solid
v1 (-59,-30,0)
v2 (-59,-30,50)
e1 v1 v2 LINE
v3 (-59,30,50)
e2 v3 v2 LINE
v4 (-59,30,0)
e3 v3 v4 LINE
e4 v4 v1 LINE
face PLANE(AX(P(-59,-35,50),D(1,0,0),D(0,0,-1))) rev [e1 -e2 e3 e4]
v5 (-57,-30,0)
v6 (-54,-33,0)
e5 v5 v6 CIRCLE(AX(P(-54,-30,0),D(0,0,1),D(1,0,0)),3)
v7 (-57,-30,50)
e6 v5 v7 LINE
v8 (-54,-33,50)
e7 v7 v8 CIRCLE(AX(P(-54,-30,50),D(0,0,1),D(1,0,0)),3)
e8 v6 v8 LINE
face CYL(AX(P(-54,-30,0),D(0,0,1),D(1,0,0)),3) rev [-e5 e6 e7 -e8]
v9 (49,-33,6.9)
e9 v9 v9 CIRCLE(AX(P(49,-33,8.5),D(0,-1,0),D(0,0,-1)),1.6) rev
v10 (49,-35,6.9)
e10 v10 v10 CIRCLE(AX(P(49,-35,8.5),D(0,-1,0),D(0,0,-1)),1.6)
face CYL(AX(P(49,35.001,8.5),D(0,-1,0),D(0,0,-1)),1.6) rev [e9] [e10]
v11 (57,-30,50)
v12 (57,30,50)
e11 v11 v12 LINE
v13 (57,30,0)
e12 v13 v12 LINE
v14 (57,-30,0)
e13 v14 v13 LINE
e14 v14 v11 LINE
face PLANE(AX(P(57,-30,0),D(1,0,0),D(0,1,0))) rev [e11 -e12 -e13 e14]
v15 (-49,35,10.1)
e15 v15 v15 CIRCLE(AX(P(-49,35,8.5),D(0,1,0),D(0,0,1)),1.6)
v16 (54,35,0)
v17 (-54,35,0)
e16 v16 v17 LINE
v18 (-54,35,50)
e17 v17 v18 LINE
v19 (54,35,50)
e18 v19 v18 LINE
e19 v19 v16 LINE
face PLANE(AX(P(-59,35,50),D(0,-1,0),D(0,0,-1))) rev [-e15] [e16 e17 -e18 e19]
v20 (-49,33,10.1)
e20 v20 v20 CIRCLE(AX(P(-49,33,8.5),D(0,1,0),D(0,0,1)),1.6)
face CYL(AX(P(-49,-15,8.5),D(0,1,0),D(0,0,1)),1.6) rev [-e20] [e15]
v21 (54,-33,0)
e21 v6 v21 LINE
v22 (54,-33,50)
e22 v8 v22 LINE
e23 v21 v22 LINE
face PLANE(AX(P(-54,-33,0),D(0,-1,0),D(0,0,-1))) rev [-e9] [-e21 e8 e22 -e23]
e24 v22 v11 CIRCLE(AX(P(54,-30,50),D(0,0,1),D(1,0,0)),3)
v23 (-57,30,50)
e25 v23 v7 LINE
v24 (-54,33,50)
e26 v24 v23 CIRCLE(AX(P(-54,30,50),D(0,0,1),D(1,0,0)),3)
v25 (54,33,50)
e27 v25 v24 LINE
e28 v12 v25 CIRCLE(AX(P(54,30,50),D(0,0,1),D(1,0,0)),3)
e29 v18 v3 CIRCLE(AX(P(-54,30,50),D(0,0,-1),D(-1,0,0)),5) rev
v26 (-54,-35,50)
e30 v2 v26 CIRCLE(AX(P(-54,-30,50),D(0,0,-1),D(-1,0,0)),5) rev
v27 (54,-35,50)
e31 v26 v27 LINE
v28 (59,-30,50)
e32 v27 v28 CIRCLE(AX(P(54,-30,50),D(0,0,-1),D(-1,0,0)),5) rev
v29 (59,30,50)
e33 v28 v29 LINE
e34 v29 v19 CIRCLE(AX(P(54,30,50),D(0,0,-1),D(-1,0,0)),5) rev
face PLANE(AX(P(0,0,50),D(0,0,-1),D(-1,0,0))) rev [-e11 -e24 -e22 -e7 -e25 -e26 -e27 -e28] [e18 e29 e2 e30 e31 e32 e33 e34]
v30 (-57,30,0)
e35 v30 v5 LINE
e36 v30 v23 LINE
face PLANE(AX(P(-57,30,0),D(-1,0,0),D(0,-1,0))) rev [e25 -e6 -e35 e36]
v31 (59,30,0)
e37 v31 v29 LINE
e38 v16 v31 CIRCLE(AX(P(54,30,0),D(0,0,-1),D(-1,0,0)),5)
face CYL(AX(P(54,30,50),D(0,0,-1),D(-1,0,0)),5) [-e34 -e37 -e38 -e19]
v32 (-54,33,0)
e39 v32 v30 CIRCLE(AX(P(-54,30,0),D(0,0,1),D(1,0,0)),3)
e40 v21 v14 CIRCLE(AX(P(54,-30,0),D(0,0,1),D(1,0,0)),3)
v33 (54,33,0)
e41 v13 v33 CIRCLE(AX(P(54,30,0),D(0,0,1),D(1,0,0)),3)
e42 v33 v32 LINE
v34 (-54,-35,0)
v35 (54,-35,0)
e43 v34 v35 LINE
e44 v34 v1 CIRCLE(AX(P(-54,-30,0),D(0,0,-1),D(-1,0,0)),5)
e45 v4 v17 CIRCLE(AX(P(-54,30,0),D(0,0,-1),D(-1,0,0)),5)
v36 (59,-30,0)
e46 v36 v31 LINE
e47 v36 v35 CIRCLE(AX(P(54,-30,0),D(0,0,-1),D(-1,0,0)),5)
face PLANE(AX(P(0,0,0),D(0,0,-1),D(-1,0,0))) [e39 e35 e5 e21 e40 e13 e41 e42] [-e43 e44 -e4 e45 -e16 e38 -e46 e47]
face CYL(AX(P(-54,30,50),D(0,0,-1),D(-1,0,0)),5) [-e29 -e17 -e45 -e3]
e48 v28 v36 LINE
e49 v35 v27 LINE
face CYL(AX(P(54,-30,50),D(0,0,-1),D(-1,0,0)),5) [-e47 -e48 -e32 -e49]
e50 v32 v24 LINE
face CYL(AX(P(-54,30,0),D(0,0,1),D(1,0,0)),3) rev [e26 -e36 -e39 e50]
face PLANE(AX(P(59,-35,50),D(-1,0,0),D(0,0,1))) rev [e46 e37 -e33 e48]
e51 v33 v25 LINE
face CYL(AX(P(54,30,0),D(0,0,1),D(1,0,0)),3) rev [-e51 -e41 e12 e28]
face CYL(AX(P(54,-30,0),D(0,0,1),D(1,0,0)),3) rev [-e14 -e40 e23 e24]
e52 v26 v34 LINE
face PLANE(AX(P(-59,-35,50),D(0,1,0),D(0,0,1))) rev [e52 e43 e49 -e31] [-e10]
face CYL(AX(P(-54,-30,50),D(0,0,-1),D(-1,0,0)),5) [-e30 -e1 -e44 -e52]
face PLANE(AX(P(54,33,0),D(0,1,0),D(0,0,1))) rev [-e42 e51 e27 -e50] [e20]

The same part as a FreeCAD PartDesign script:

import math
import FreeCAD as App
import Part
import Sketcher
Q = App.Units.Quantity


def edges_at(feature, points):
    """Names of the edges that pass closest to the given points."""
    edges = feature.Shape.Edges
    near = lambda p: min(range(len(edges)), key=lambda i: edges[i].distToShape(Part.Vertex(*p))[0])
    return sorted({f"Edge{near(p) + 1}" for p in points})

doc = App.newDocument("Part")
body = doc.addObject("PartDesign::Body", "Body")

# Sketch on XY plane
sketch1 = doc.addObject("Sketcher::SketchObject", "Sketch")
body.addObject(sketch1)
sketch1.AttachmentSupport = (doc.XY_Plane, [""])
sketch1.MapMode = "FlatFace"
sketch1.addGeometry(Part.LineSegment(App.Vector(-59, 35, 0), App.Vector(-59, -35, 0)), False)
sketch1.addGeometry(Part.LineSegment(App.Vector(-59, -35, 0), App.Vector(59, -35, 0)), False)
sketch1.addGeometry(Part.LineSegment(App.Vector(59, -35, 0), App.Vector(59, 35, 0)), False)
sketch1.addGeometry(Part.LineSegment(App.Vector(59, 35, 0), App.Vector(-59, 35, 0)), False)
sketch1.addConstraint(Sketcher.Constraint("Coincident", 0, 2, 1, 1))
sketch1.addConstraint(Sketcher.Constraint("Coincident", 1, 2, 2, 1))
sketch1.addConstraint(Sketcher.Constraint("Coincident", 2, 2, 3, 1))
sketch1.addConstraint(Sketcher.Constraint("Coincident", 3, 2, 0, 1))
sketch1.addConstraint(Sketcher.Constraint("Vertical", 0))
sketch1.addConstraint(Sketcher.Constraint("Horizontal", 1))
sketch1.addConstraint(Sketcher.Constraint("Vertical", 2))
sketch1.addConstraint(Sketcher.Constraint("Horizontal", 3))
sketch1.addConstraint(Sketcher.Constraint("Symmetric", 0, 2, 2, 2, -1, 1))
sketch1.addConstraint(Sketcher.Constraint("DistanceX", 1, 1, 1, 2, Q("118 mm")))
sketch1.addConstraint(Sketcher.Constraint("DistanceY", 0, 2, 0, 1, Q("70 mm")))
pad1 = doc.addObject("PartDesign::Pad", "Pad")
body.addObject(pad1)
pad1.Profile = sketch1
pad1.Length = 50
doc.recompute()

fillet = doc.addObject("PartDesign::Fillet", "Fillet")
body.addObject(fillet)
fillet.Base = (pad1, edges_at(pad1, [
    (59, -35, 25),
    (-59, -35, 25),
    (-59, 35, 25),
    (59, 35, 25),
]))
fillet.Radius = 5

# Sketch on XY plane
sketch2 = doc.addObject("Sketcher::SketchObject", "Sketch001")
body.addObject(sketch2)
sketch2.AttachmentSupport = (doc.XY_Plane, [""])
sketch2.MapMode = "FlatFace"
sketch2.AttachmentOffset = App.Placement(App.Vector(0, 0, 50), App.Rotation())
sketch2.addGeometry(Part.LineSegment(App.Vector(-54, -33, 0), App.Vector(54, -33, 0)), False)
sketch2.addGeometry(Part.ArcOfCircle(Part.Circle(App.Vector(54, -30, 0), App.Vector(0, 0, 1), 3), math.radians(-90), math.radians(0)), False)
sketch2.addGeometry(Part.LineSegment(App.Vector(57, -30, 0), App.Vector(57, 30, 0)), False)
sketch2.addGeometry(Part.ArcOfCircle(Part.Circle(App.Vector(54, 30, 0), App.Vector(0, 0, 1), 3), math.radians(0), math.radians(90)), False)
sketch2.addGeometry(Part.LineSegment(App.Vector(54, 33, 0), App.Vector(-54, 33, 0)), False)
sketch2.addGeometry(Part.ArcOfCircle(Part.Circle(App.Vector(-54, 30, 0), App.Vector(0, 0, 1), 3), math.radians(90), math.radians(180)), False)
sketch2.addGeometry(Part.LineSegment(App.Vector(-57, 30, 0), App.Vector(-57, -30, 0)), False)
sketch2.addGeometry(Part.ArcOfCircle(Part.Circle(App.Vector(-54, -30, 0), App.Vector(0, 0, 1), 3), math.radians(180), math.radians(270)), False)
sketch2.addConstraint(Sketcher.Constraint("Tangent", 0, 2, 1, 1))
sketch2.addConstraint(Sketcher.Constraint("Tangent", 1, 2, 2, 1))
sketch2.addConstraint(Sketcher.Constraint("Tangent", 2, 2, 3, 1))
sketch2.addConstraint(Sketcher.Constraint("Tangent", 3, 2, 4, 1))
sketch2.addConstraint(Sketcher.Constraint("Tangent", 4, 2, 5, 1))
sketch2.addConstraint(Sketcher.Constraint("Tangent", 5, 2, 6, 1))
sketch2.addConstraint(Sketcher.Constraint("Tangent", 6, 2, 7, 1))
sketch2.addConstraint(Sketcher.Constraint("Tangent", 7, 2, 0, 1))
sketch2.addConstraint(Sketcher.Constraint("Horizontal", 0))
sketch2.addConstraint(Sketcher.Constraint("Vertical", 2))
sketch2.addConstraint(Sketcher.Constraint("Horizontal", 4))
sketch2.addConstraint(Sketcher.Constraint("Vertical", 6))
sketch2.addConstraint(Sketcher.Constraint("Equal", 1, 3))
sketch2.addConstraint(Sketcher.Constraint("Equal", 3, 5))
sketch2.addConstraint(Sketcher.Constraint("Equal", 5, 7))
sketch2.addConstraint(Sketcher.Constraint("Symmetric", 1, 3, 5, 3, -1, 1))
sketch2.addConstraint(Sketcher.Constraint("Radius", 1, Q("3 mm")))
sketch2.addConstraint(Sketcher.Constraint("DistanceX", 0, 1, 0, 2, Q("108 mm")))
sketch2.addConstraint(Sketcher.Constraint("DistanceY", 2, 1, 2, 2, Q("60 mm")))
pocket1 = doc.addObject("PartDesign::Pocket", "Pocket")
body.addObject(pocket1)
pocket1.Profile = sketch2
pocket1.Type = "ThroughAll"

# Sketch on XZ plane
sketch3 = doc.addObject("Sketcher::SketchObject", "Sketch002")
body.addObject(sketch3)
sketch3.AttachmentSupport = (doc.XZ_Plane, [""])
sketch3.MapMode = "FlatFace"
sketch3.AttachmentOffset = App.Placement(App.Vector(0, 0, 35), App.Rotation())
sketch3.addGeometry(Part.Circle(App.Vector(49, 8.5, 0), App.Vector(0, 0, 1), 1.6), False)
sketch3.addConstraint(Sketcher.Constraint("Diameter", 0, Q("3.2 mm")))
sketch3.addConstraint(Sketcher.Constraint("DistanceX", -1, 1, 0, 3, Q("49 mm")))
sketch3.addConstraint(Sketcher.Constraint("DistanceY", -1, 1, 0, 3, Q("8.5 mm")))
pocket2 = doc.addObject("PartDesign::Pocket", "Pocket001")
body.addObject(pocket2)
pocket2.Profile = sketch3
pocket2.Type = "UpToFirst"

# Sketch on XZ plane
sketch4 = doc.addObject("Sketcher::SketchObject", "Sketch003")
body.addObject(sketch4)
sketch4.AttachmentSupport = (doc.XZ_Plane, [""])
sketch4.MapMode = "FlatFace"
sketch4.AttachmentOffset = App.Placement(App.Vector(0, 0, -35), App.Rotation())
sketch4.addGeometry(Part.Circle(App.Vector(-49, 8.5, 0), App.Vector(0, 0, 1), 1.6), False)
sketch4.addConstraint(Sketcher.Constraint("Diameter", 0, Q("3.2 mm")))
sketch4.addConstraint(Sketcher.Constraint("DistanceX", 0, 3, -1, 1, Q("49 mm")))
sketch4.addConstraint(Sketcher.Constraint("DistanceY", -1, 1, 0, 3, Q("8.5 mm")))
pocket3 = doc.addObject("PartDesign::Pocket", "Pocket002")
body.addObject(pocket3)
pocket3.Profile = sketch4
pocket3.Length = 50
pocket3.Reversed = True

doc.recompute()
